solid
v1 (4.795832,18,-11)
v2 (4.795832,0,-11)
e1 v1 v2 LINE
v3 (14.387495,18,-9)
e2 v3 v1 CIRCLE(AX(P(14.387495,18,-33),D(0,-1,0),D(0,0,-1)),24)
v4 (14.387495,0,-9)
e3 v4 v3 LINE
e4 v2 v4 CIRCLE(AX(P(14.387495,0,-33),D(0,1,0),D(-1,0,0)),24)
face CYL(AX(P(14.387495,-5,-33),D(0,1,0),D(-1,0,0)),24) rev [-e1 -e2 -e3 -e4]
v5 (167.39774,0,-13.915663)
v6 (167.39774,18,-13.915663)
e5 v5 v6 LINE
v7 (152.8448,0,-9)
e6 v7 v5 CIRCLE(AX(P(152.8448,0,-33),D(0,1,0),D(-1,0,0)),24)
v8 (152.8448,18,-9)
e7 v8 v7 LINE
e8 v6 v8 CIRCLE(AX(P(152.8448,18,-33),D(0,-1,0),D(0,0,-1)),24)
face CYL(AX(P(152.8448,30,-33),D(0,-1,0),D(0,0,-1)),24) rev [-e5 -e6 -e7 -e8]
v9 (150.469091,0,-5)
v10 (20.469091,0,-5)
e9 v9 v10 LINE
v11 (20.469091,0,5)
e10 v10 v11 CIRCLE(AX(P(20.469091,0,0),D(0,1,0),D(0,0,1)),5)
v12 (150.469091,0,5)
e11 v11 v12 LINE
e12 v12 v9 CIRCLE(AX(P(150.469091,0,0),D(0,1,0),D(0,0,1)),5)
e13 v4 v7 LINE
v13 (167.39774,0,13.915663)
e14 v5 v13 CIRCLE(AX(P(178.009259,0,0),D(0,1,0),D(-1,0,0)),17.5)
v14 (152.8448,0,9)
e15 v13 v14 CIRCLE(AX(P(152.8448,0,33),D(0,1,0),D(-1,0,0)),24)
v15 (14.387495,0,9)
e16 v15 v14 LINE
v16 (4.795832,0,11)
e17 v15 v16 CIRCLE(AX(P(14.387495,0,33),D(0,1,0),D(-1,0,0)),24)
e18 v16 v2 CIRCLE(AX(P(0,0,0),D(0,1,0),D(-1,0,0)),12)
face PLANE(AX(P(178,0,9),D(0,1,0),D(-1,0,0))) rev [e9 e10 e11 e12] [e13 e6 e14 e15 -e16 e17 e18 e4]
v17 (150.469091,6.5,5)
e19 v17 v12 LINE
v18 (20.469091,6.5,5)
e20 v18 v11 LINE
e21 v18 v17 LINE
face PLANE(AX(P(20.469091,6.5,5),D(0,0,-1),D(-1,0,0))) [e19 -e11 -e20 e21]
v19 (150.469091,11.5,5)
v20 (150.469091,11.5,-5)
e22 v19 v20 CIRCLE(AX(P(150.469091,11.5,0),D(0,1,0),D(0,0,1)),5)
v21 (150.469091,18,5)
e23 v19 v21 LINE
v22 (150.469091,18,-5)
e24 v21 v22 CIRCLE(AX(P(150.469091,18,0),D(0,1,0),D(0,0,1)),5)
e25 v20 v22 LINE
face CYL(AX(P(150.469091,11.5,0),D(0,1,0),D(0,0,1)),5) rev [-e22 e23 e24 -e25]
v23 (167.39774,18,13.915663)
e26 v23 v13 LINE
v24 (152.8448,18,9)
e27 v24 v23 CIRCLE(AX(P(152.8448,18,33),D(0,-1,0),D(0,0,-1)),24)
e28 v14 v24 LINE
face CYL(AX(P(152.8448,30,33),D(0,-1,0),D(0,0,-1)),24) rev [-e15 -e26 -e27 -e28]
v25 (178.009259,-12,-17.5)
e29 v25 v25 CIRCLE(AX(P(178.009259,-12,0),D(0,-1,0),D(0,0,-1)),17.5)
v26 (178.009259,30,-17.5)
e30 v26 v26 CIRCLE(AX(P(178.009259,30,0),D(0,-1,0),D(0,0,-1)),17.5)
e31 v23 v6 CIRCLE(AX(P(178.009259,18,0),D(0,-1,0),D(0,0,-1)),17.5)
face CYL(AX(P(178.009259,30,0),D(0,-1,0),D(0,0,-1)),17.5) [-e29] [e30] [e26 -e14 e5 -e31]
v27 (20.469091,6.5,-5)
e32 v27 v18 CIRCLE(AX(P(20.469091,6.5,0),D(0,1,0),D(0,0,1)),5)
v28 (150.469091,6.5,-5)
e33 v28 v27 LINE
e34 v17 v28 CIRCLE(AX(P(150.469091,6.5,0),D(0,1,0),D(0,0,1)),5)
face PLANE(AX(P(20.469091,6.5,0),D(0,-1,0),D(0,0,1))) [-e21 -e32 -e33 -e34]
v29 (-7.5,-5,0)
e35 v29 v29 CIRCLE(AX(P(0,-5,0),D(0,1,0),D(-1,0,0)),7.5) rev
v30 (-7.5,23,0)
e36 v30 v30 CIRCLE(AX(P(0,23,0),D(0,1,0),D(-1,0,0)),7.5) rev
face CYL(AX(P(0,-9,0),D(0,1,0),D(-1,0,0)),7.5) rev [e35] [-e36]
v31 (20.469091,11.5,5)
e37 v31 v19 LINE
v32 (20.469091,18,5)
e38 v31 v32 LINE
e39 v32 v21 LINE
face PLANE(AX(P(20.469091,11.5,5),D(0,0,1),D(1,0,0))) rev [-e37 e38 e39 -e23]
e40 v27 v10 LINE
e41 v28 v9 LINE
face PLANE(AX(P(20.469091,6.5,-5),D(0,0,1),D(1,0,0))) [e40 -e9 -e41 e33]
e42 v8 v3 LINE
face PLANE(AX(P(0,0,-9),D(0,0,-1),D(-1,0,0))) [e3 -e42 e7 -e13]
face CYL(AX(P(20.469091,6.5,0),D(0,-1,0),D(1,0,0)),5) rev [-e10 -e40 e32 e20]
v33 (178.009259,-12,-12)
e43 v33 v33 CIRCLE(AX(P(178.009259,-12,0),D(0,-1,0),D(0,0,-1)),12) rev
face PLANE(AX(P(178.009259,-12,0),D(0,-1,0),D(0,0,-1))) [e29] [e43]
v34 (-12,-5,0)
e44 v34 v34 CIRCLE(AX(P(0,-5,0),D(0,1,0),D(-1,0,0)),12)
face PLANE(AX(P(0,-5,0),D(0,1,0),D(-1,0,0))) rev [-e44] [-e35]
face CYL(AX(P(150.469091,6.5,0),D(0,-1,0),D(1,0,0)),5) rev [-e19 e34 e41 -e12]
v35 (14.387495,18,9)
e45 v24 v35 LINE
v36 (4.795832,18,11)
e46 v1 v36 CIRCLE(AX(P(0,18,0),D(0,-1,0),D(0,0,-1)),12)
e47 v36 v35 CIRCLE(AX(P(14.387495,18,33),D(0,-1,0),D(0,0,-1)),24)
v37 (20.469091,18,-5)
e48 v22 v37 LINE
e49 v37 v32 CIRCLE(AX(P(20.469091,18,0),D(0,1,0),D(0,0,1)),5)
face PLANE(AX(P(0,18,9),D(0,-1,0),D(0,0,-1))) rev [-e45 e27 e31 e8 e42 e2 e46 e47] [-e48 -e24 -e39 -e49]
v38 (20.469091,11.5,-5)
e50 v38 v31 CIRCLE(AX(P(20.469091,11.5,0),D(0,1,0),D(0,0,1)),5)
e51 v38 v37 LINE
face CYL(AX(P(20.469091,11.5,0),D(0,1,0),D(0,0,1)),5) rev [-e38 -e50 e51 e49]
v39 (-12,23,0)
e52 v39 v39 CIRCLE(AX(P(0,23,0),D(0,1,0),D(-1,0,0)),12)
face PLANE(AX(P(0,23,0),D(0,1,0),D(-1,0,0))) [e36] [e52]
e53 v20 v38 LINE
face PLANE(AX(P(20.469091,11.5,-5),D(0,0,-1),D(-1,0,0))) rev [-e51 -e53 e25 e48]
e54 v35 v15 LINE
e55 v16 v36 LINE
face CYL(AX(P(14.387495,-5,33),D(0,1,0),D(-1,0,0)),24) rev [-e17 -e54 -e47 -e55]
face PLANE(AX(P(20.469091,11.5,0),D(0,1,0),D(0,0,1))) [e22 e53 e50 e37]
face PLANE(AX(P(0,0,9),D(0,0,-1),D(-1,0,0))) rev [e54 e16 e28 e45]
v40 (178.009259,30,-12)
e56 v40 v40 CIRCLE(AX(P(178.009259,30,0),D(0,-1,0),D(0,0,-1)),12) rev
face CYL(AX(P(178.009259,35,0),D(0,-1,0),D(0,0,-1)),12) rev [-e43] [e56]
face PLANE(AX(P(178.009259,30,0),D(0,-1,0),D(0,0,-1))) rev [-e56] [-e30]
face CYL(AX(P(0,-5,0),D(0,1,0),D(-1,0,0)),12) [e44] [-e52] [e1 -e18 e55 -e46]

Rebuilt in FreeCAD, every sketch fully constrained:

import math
import FreeCAD as App
import Part
import Sketcher
from FreeCAD import Vector


def edges_at(feature, points):
    """Names of the edges that pass closest to the given points."""
    edges = feature.Shape.Edges
    near = lambda p: min(range(len(edges)), key=lambda i: edges[i].distToShape(Part.Vertex(*p))[0])
    return sorted({f"Edge{near(p) + 1}" for p in points})


def add_polygon(sketch, points):
    """Adds a closed chain of lines whose ends are joined by coincident constraints."""
    first, n = sketch.GeometryCount, len(points)
    for a, b in zip(points, points[1:] + points[:1]):
        sketch.addGeometry(Part.LineSegment(App.Vector(*a, 0), App.Vector(*b, 0)), False)
    for i in range(n):
        sketch.addConstraint(Sketcher.Constraint("Coincident", first + i, 2, first + (i + 1) % n, 1))

doc = App.newDocument("Part")
body = doc.addObject("PartDesign::Body", "Body")

# Sketch on XY plane
sketch1 = body.newObject("Sketcher::SketchObject", "Sketch")
sketch1.AttachmentSupport = (doc.getObject("XY_Plane"), [""])
sketch1.MapMode = "FlatFace"
add_polygon(sketch1, [(0, 18), (0, 0), (178, 0), (178, 18)])  # lines 0-3
sketch1.addConstraint(Sketcher.Constraint("Vertical", 0))
sketch1.addConstraint(Sketcher.Constraint("Horizontal", 1))
sketch1.addConstraint(Sketcher.Constraint("Vertical", 2))
sketch1.addConstraint(Sketcher.Constraint("Horizontal", 3))
sketch1.addConstraint(Sketcher.Constraint("Coincident", 0, 2, -1, 1))
sketch1.addConstraint(Sketcher.Constraint("DistanceX", 1, 1, 1, 2, 178.0))
sketch1.addConstraint(Sketcher.Constraint("DistanceY", 0, 2, 0, 1, 18.0))
pad1 = body.newObject("PartDesign::Pad", "Pad")
pad1.Profile = sketch1
pad1.Length = 18
pad1.Midplane = True

# Sketch on XZ plane
sketch2 = body.newObject("Sketcher::SketchObject", "Sketch001")
sketch2.AttachmentSupport = (doc.getObject("XZ_Plane"), [""])
sketch2.MapMode = "FlatFace"
sketch2.AttachmentOffset = App.Placement(Vector(0, 0, 5), App.Rotation())
sketch2.addGeometry(Part.Circle(Vector(0, 0, 0), Vector(0, 0, 1), 12), False)
sketch2.addConstraint(Sketcher.Constraint("Coincident", 0, 3, -1, 1))
sketch2.addConstraint(Sketcher.Constraint("Diameter", 0, 24.0))

# Sketch on XY plane
sketch3 = body.newObject("Sketcher::SketchObject", "Sketch002")
sketch3.AttachmentSupport = (doc.getObject("XY_Plane"), [""])
sketch3.MapMode = "FlatFace"
sketch3.addGeometry(Part.LineSegment(Vector(0, -5, 0), Vector(0, 23, 0)), False)
sketch3.addConstraint(Sketcher.Constraint("Vertical", 0))
sketch3.addConstraint(Sketcher.Constraint("PointOnObject", 0, 1, -2))
sketch3.addConstraint(Sketcher.Constraint("DistanceY", 0, 1, 0, 2, 28.0))
sketch3.addConstraint(Sketcher.Constraint("DistanceY", 0, 1, -1, 1, 5.0))
doc.recompute()

additivepipe = body.newObject("PartDesign::AdditivePipe", "AdditivePipe")
additivepipe.Profile = sketch2
additivepipe.Spine = (sketch3, ["Edge1"])

# Sketch on XZ plane
sketch4 = body.newObject("Sketcher::SketchObject", "Sketch003")
sketch4.AttachmentSupport = (doc.getObject("XZ_Plane"), [""])
sketch4.MapMode = "FlatFace"
sketch4.AttachmentOffset = App.Placement(Vector(0, 0, -30), App.Rotation())
sketch4.addGeometry(Part.Circle(Vector(178, 0, 0), Vector(0, 0, 1), 18), False)
sketch4.addConstraint(Sketcher.Constraint("PointOnObject", 0, 3, -1))
sketch4.addConstraint(Sketcher.Constraint("Diameter", 0, 35.0))
sketch4.addConstraint(Sketcher.Constraint("DistanceX", -1, 1, 0, 3, 178.009259))

# Sketch on XY plane
sketch5 = body.newObject("Sketcher::SketchObject", "Sketch004")
sketch5.AttachmentSupport = (doc.getObject("XY_Plane"), [""])
sketch5.MapMode = "FlatFace"
sketch5.addGeometry(Part.LineSegment(Vector(178, 30, 0), Vector(178, -12, 0)), False)
sketch5.addConstraint(Sketcher.Constraint("Vertical", 0))
sketch5.addConstraint(Sketcher.Constraint("DistanceY", 0, 2, 0, 1, 42.0))
sketch5.addConstraint(Sketcher.Constraint("DistanceY", -1, 1, 0, 1, 30.0))
sketch5.addConstraint(Sketcher.Constraint("DistanceX", -1, 1, 0, 1, 178.009259))
doc.recompute()

additivepipe2 = body.newObject("PartDesign::AdditivePipe", "AdditivePipe001")
additivepipe2.Profile = sketch4
additivepipe2.Spine = (sketch5, ["Edge1"])

# Sketch on XZ plane
sketch6 = body.newObject("Sketcher::SketchObject", "Sketch005")
sketch6.AttachmentSupport = (doc.getObject("XZ_Plane"), [""])
sketch6.MapMode = "FlatFace"
sketch6.AttachmentOffset = App.Placement(Vector(0, 0, -18), App.Rotation())
sketch6.addGeometry(Part.LineSegment(Vector(150, -5, 0), Vector(20, -5, 0)), False)
sketch6.addGeometry(Part.ArcOfCircle(Part.Circle(Vector(20, 0, 0), Vector(0, 0, 1), 5), math.radians(90), math.radians(270)), False)
sketch6.addGeometry(Part.LineSegment(Vector(20, 5, 0), Vector(150, 5, 0)), False)
sketch6.addGeometry(Part.ArcOfCircle(Part.Circle(Vector(150, 0, 0), Vector(0, 0, 1), 5), math.radians(-90), math.radians(90)), False)
sketch6.addConstraint(Sketcher.Constraint("Tangent", 0, 2, 1, 2))
sketch6.addConstraint(Sketcher.Constraint("Tangent", 1, 1, 2, 1))
sketch6.addConstraint(Sketcher.Constraint("Tangent", 2, 2, 3, 2))
sketch6.addConstraint(Sketcher.Constraint("Tangent", 3, 1, 0, 1))
sketch6.addConstraint(Sketcher.Constraint("Horizontal", 0))
sketch6.addConstraint(Sketcher.Constraint("Horizontal", 2))
sketch6.addConstraint(Sketcher.Constraint("PointOnObject", 1, 3, -1))
sketch6.addConstraint(Sketcher.Constraint("Radius", 1, 5.0))
sketch6.addConstraint(Sketcher.Constraint("DistanceX", 0, 2, 0, 1, 130.0))
sketch6.addConstraint(Sketcher.Constraint("DistanceX", -1, 1, 1, 3, 20.469091))
pocket1 = body.newObject("PartDesign::Pocket", "Pocket")
pocket1.Profile = sketch6
pocket1.Length = 6.5
pocket1.Reversed = True
doc.recompute()

datumplane = body.newObject("PartDesign::Plane", "DatumPlane")
datumplane.AttachmentSupport = (doc.getObject("XZ_Plane"), [""])
datumplane.MapMode = "FlatFace"
datumplane.AttachmentOffset = App.Placement(Vector(0, 0, -9), App.Rotation())
mirrored = body.newObject("PartDesign::Mirrored", "Mirrored")
mirrored.Originals = [pocket1]
mirrored.MirrorPlane = (datumplane, [""])
body.Tip = mirrored

# Sketch on XZ plane
sketch7 = body.newObject("Sketcher::SketchObject", "Sketch006")
sketch7.AttachmentSupport = (doc.getObject("XZ_Plane"), [""])
sketch7.MapMode = "FlatFace"
sketch7.AttachmentOffset = App.Placement(Vector(0, 0, 5), App.Rotation())
sketch7.addGeometry(Part.Circle(Vector(0, 0, 0), Vector(0, 0, 1), 8), False)
sketch7.addConstraint(Sketcher.Constraint("Coincident", 0, 3, -1, 1))
sketch7.addConstraint(Sketcher.Constraint("Diameter", 0, 15.0))

# Sketch on XY plane
sketch8 = body.newObject("Sketcher::SketchObject", "Sketch007")
sketch8.AttachmentSupport = (doc.getObject("XY_Plane"), [""])
sketch8.MapMode = "FlatFace"
sketch8.addGeometry(Part.LineSegment(Vector(0, -5, 0), Vector(0, 23, 0)), False)
sketch8.addConstraint(Sketcher.Constraint("Vertical", 0))
sketch8.addConstraint(Sketcher.Constraint("PointOnObject", 0, 1, -2))
sketch8.addConstraint(Sketcher.Constraint("DistanceY", 0, 1, 0, 2, 28.0))
sketch8.addConstraint(Sketcher.Constraint("DistanceY", 0, 1, -1, 1, 5.0))
doc.recompute()

subtractivepipe = body.newObject("PartDesign::SubtractivePipe", "SubtractivePipe")
subtractivepipe.Profile = sketch7
subtractivepipe.Spine = (sketch8, ["Edge1"])

# Sketch on XZ plane
sketch9 = body.newObject("Sketcher::SketchObject", "Sketch008")
sketch9.AttachmentSupport = (doc.getObject("XZ_Plane"), [""])
sketch9.MapMode = "FlatFace"
sketch9.AttachmentOffset = App.Placement(Vector(0, 0, -30), App.Rotation())
sketch9.addGeometry(Part.Circle(Vector(178, 0, 0), Vector(0, 0, 1), 12), False)
sketch9.addConstraint(Sketcher.Constraint("PointOnObject", 0, 3, -1))
sketch9.addConstraint(Sketcher.Constraint("Diameter", 0, 24.0))
sketch9.addConstraint(Sketcher.Constraint("DistanceX", -1, 1, 0, 3, 178.009259))

# Sketch on XY plane
sketch10 = body.newObject("Sketcher::SketchObject", "Sketch009")
sketch10.AttachmentSupport = (doc.getObject("XY_Plane"), [""])
sketch10.MapMode = "FlatFace"
sketch10.addGeometry(Part.LineSegment(Vector(178, 30, 0), Vector(178, -12, 0)), False)
sketch10.addConstraint(Sketcher.Constraint("Vertical", 0))
sketch10.addConstraint(Sketcher.Constraint("DistanceY", 0, 2, 0, 1, 42.0))
sketch10.addConstraint(Sketcher.Constraint("DistanceY", -1, 1, 0, 1, 30.0))
sketch10.addConstraint(Sketcher.Constraint("DistanceX", -1, 1, 0, 1, 178.009259))
doc.recompute()

subtractivepipe2 = body.newObject("PartDesign::SubtractivePipe", "SubtractivePipe001")
subtractivepipe2.Profile = sketch9
subtractivepipe2.Spine = (sketch10, ["Edge1"])
doc.recompute()

fillet = body.newObject("PartDesign::Fillet", "Fillet")
fillet.Base = (subtractivepipe2, edges_at(subtractivepipe2, [
    (7.937, 9, -9),
    (7.937, 9, 9),
    (163.001, 9, -9),
    (163.001, 9, 9),
]))
fillet.Radius = 24

doc.recompute()
